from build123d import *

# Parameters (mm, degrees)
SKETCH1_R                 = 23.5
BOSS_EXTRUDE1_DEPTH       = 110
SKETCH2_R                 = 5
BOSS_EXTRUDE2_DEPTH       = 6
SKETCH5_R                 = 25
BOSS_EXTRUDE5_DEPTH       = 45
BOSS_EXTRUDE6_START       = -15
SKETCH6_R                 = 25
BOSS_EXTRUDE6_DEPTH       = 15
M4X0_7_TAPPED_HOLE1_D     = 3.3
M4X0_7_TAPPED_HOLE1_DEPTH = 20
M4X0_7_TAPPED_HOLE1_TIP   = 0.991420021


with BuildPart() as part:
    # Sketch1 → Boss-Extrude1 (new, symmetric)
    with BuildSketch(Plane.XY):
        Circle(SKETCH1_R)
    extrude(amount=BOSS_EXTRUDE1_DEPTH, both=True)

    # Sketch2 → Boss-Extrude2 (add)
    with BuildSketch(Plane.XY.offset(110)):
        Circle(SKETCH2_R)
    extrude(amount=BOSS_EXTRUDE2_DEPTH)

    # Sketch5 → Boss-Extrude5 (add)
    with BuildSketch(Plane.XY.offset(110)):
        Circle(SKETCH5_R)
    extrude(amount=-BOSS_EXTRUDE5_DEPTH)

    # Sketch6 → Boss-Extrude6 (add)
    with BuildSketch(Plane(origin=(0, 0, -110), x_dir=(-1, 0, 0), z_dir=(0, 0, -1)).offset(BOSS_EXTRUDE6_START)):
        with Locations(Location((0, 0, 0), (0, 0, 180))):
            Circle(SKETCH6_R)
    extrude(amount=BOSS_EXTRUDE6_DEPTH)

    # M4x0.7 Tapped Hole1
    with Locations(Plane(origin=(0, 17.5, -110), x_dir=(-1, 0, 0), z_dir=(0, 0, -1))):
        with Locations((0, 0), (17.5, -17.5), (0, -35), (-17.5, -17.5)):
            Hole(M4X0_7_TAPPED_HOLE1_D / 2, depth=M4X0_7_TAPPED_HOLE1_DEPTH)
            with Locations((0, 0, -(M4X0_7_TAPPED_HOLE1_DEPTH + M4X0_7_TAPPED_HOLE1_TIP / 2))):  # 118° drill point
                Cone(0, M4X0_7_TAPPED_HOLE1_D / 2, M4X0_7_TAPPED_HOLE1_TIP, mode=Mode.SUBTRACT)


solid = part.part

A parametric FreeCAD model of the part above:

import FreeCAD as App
import Part
import Sketcher

doc = App.newDocument("Part")
body = doc.addObject("PartDesign::Body", "Body")

sketch1 = body.newObject("Sketcher::SketchObject", "Sketch")
sketch1.AttachmentSupport = (doc.getObject("XY_Plane"), [""])
sketch1.MapMode = "FlatFace"
sketch1.addGeometry(Part.Circle(App.Vector(0, 0, 0), App.Vector(0, 0, 1), 23.5), False)
sketch1.addConstraint([
    Sketcher.Constraint("Coincident", 0, 3, -1, 1),
    Sketcher.Constraint("Diameter", 0, 47.0),
])
pad1 = body.newObject("PartDesign::Pad", "Pad")
pad1.Profile = sketch1
pad1.Length = 220
pad1.Midplane = True

sketch2 = body.newObject("Sketcher::SketchObject", "Sketch001")
sketch2.AttachmentSupport = (doc.getObject("XY_Plane"), [""])
sketch2.MapMode = "FlatFace"
sketch2.AttachmentOffset = App.Placement(App.Vector(0, 0, 110), App.Rotation())
sketch2.addGeometry(Part.Circle(App.Vector(0, 0, 0), App.Vector(0, 0, 1), 5), False)
sketch2.addConstraint([
    Sketcher.Constraint("Coincident", 0, 3, -1, 1),
    Sketcher.Constraint("Diameter", 0, 10.0),
])
pad2 = body.newObject("PartDesign::Pad", "Pad001")
pad2.Profile = sketch2
pad2.Length = 6

sketch3 = body.newObject("Sketcher::SketchObject", "Sketch002")
sketch3.AttachmentSupport = (doc.getObject("XY_Plane"), [""])
sketch3.MapMode = "FlatFace"
sketch3.AttachmentOffset = App.Placement(App.Vector(0, 0, 110), App.Rotation())
sketch3.addGeometry(Part.Circle(App.Vector(0, 0, 0), App.Vector(0, 0, 1), 25), False)
sketch3.addConstraint([
    Sketcher.Constraint("Coincident", 0, 3, -1, 1),
    Sketcher.Constraint("Diameter", 0, 50.0),
])
pad3 = body.newObject("PartDesign::Pad", "Pad002")
pad3.Profile = sketch3
pad3.Length = 45
pad3.Reversed = True

sketch4 = body.newObject("Sketcher::SketchObject", "Sketch003")
sketch4.AttachmentSupport = (doc.getObject("XY_Plane"), [""])
sketch4.MapMode = "FlatFace"
sketch4.AttachmentOffset = App.Placement(App.Vector(0, 0, -95), App.Rotation())
sketch4.addGeometry(Part.Circle(App.Vector(0, 0, 0), App.Vector(0, 0, 1), 25), False)
sketch4.addConstraint([
    Sketcher.Constraint("Coincident", 0, 3, -1, 1),
    Sketcher.Constraint("Diameter", 0, 50.0),
])
pad4 = body.newObject("PartDesign::Pad", "Pad003")
pad4.Profile = sketch4
pad4.Length = 15
pad4.Reversed = True

sketch5 = body.newObject("Sketcher::SketchObject", "Sketch004")
sketch5.AttachmentSupport = (doc.getObject("XY_Plane"), [""])
sketch5.MapMode = "FlatFace"
sketch5.AttachmentOffset = App.Placement(App.Vector(0, 0, -110), App.Rotation())
sketch5.addGeometry([
    Part.Circle(App.Vector(0, 17.5, 0), App.Vector(0, 0, 1), 1.65),
    Part.Circle(App.Vector(-17.5, 0, 0), App.Vector(0, 0, 1), 1.65),
    Part.Circle(App.Vector(0, -17.5, 0), App.Vector(0, 0, 1), 1.65),
    Part.Circle(App.Vector(17.5, 0, 0), App.Vector(0, 0, 1), 1.65),
], False)
sketch5.addConstraint([
    Sketcher.Constraint("Equal", 0, 1),
    Sketcher.Constraint("Equal", 1, 2),
    Sketcher.Constraint("Equal", 2, 3),
    Sketcher.Constraint("Symmetric", 0, 3, 2, 3, -1, 1),
    Sketcher.Constraint("Symmetric", 1, 3, 3, 3, -1, 1),
    Sketcher.Constraint("PointOnObject", 0, 3, -2),
    Sketcher.Constraint("PointOnObject", 1, 3, -1),
    Sketcher.Constraint("Diameter", 0, 3.3),
    Sketcher.Constraint("DistanceY", 2, 3, 0, 3, 35.0),
    Sketcher.Constraint("DistanceX", 1, 3, 3, 3, 35.0),
])
doc.recompute()
hole = body.newObject("PartDesign::Hole", "Hole")
hole.Profile = sketch5
hole.ThreadType = "None"
hole.Diameter = 3.3
hole.DepthType = "Dimension"
hole.Depth = 20
hole.DrillPoint = "Angled"
hole.DrillPointAngle = 118
hole.Reversed = True

doc.recompute()
